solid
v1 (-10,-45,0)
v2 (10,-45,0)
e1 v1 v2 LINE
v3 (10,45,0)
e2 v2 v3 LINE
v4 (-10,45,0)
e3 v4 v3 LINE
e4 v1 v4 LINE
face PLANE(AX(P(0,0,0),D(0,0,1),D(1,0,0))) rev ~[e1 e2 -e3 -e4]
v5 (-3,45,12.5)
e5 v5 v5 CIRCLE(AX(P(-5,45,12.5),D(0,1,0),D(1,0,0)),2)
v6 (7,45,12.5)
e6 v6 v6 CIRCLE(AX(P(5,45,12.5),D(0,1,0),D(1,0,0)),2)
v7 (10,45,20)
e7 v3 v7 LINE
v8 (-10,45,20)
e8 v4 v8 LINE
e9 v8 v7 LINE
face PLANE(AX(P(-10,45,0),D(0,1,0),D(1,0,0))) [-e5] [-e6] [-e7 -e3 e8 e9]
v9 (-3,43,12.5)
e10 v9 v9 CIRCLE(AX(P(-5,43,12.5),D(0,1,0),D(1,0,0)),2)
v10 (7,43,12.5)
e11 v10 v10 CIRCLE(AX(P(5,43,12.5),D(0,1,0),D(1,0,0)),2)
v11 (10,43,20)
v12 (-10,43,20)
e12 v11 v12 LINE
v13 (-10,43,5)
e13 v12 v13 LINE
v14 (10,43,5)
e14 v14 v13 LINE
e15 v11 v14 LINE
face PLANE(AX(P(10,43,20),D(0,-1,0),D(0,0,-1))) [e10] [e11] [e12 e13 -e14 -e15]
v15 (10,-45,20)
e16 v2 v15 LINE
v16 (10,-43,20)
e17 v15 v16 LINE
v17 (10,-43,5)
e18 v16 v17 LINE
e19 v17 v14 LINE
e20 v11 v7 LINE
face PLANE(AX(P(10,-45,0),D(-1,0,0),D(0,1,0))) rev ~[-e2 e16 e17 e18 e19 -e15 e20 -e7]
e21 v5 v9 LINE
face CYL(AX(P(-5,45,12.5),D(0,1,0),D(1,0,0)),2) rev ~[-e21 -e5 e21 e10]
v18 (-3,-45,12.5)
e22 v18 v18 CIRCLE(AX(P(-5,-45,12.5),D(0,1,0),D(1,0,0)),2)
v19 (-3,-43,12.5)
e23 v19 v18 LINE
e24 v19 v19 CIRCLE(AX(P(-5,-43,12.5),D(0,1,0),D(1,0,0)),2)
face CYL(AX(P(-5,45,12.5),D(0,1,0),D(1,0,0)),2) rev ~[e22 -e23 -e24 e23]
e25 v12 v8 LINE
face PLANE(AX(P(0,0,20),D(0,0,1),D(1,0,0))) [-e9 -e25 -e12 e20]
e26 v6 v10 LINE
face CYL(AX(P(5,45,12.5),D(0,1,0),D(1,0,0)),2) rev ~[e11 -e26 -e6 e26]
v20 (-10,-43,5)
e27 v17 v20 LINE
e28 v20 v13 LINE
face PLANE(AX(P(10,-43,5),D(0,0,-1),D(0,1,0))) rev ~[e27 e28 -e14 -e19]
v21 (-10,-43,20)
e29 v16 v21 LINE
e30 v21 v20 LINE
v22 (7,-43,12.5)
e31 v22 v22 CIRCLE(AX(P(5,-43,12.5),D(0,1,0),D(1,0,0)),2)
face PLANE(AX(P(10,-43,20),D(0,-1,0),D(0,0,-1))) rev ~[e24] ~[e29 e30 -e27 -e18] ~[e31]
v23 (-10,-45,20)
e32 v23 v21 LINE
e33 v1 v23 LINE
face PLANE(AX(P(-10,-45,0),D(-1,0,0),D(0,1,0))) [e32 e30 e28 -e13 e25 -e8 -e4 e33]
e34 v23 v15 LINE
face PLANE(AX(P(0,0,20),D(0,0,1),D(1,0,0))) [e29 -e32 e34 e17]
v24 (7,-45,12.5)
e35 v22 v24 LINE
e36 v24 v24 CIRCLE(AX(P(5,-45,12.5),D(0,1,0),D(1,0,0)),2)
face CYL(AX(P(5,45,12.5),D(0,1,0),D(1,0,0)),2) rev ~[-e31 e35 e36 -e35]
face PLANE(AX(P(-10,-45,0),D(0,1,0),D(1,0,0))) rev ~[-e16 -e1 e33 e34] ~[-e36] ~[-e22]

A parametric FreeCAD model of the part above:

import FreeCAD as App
import Part
import Sketcher
from FreeCAD import Vector
Q = App.Units.Quantity

doc = App.newDocument("Part")
body = doc.addObject("PartDesign::Body", "Body")

# Sketch on XY plane
sketch1 = body.newObject("Sketcher::SketchObject", "Sketch")
sketch1.AttachmentSupport = (doc.getObject("XY_Plane"), [""])
sketch1.MapMode = "FlatFace"
sketch1.addGeometry([
    Part.LineSegment(Vector(-10, 45, 0), Vector(-10, -45, 0)),
    Part.LineSegment(Vector(-10, -45, 0), Vector(10, -45, 0)),
    Part.LineSegment(Vector(10, -45, 0), Vector(10, 45, 0)),
    Part.LineSegment(Vector(10, 45, 0), Vector(-10, 45, 0)),
], False)
sketch1.addConstraint([
    Sketcher.Constraint("Coincident", 0, 2, 1, 1),
    Sketcher.Constraint("Coincident", 1, 2, 2, 1),
    Sketcher.Constraint("Coincident", 2, 2, 3, 1),
    Sketcher.Constraint("Coincident", 3, 2, 0, 1),
    Sketcher.Constraint("Vertical", 0),
    Sketcher.Constraint("Horizontal", 1),
    Sketcher.Constraint("Vertical", 2),
    Sketcher.Constraint("Horizontal", 3),
    Sketcher.Constraint("Symmetric", 0, 2, 2, 2, -1, 1),
    Sketcher.Constraint("DistanceX", 1, 1, 1, 2, Q("20 mm")),
    Sketcher.Constraint("DistanceY", 0, 2, 0, 1, Q("90 mm")),
])
pad1 = body.newObject("PartDesign::Pad", "Pad")
pad1.Profile = sketch1
pad1.Length = 20

# Sketch on YZ plane
sketch2 = body.newObject("Sketcher::SketchObject", "Sketch001")
sketch2.AttachmentSupport = (doc.getObject("YZ_Plane"), [""])
sketch2.MapMode = "FlatFace"
sketch2.AttachmentOffset = App.Placement(Vector(0, 0, 10), App.Rotation())
sketch2.addGeometry([
    Part.LineSegment(Vector(43, 20, 0), Vector(-43, 20, 0)),
    Part.LineSegment(Vector(-43, 20, 0), Vector(-43, 5, 0)),
    Part.LineSegment(Vector(-43, 5, 0), Vector(43, 5, 0)),
    Part.LineSegment(Vector(43, 5, 0), Vector(43, 20, 0)),
], False)
sketch2.addConstraint([
    Sketcher.Constraint("Coincident", 0, 2, 1, 1),
    Sketcher.Constraint("Coincident", 1, 2, 2, 1),
    Sketcher.Constraint("Coincident", 2, 2, 3, 1),
    Sketcher.Constraint("Coincident", 3, 2, 0, 1),
    Sketcher.Constraint("Horizontal", 0),
    Sketcher.Constraint("Vertical", 1),
    Sketcher.Constraint("Horizontal", 2),
    Sketcher.Constraint("Vertical", 3),
    Sketcher.Constraint("DistanceX", 0, 2, 0, 1, Q("86 mm")),
    Sketcher.Constraint("DistanceY", 1, 2, 1, 1, Q("15 mm")),
    Sketcher.Constraint("DistanceX", 0, 2, -1, 1, Q("43 mm")),
    Sketcher.Constraint("DistanceY", -1, 1, 0, 2, Q("20 mm")),
])
pocket1 = body.newObject("PartDesign::Pocket", "Pocket")
pocket1.Profile = sketch2
pocket1.Type = "UpToFirst"

# Sketch on XZ plane
sketch3 = body.newObject("Sketcher::SketchObject", "Sketch002")
sketch3.AttachmentSupport = (doc.getObject("XZ_Plane"), [""])
sketch3.MapMode = "FlatFace"
sketch3.AttachmentOffset = App.Placement(Vector(0, 0, -45), App.Rotation())
sketch3.addGeometry([
    Part.Circle(Vector(-5, 12.5, 0), Vector(0, 0, 1), 2),
    Part.Circle(Vector(5, 12.5, 0), Vector(0, 0, 1), 2),
], False)
sketch3.addConstraint([
    Sketcher.Constraint("Equal", 0, 1),
    Sketcher.Constraint("Symmetric", 0, 3, 1, 3, -2),
    Sketcher.Constraint("Diameter", 0, Q("4 mm")),
    Sketcher.Constraint("DistanceX", 0, 3, -1, 1, Q("5 mm")),
    Sketcher.Constraint("DistanceY", -1, 1, 0, 3, Q("12.5 mm")),
])
pocket2 = body.newObject("PartDesign::Pocket", "Pocket001")
pocket2.Profile = sketch3
pocket2.Type = "ThroughAll"
pocket2.Midplane = True

doc.recompute()
